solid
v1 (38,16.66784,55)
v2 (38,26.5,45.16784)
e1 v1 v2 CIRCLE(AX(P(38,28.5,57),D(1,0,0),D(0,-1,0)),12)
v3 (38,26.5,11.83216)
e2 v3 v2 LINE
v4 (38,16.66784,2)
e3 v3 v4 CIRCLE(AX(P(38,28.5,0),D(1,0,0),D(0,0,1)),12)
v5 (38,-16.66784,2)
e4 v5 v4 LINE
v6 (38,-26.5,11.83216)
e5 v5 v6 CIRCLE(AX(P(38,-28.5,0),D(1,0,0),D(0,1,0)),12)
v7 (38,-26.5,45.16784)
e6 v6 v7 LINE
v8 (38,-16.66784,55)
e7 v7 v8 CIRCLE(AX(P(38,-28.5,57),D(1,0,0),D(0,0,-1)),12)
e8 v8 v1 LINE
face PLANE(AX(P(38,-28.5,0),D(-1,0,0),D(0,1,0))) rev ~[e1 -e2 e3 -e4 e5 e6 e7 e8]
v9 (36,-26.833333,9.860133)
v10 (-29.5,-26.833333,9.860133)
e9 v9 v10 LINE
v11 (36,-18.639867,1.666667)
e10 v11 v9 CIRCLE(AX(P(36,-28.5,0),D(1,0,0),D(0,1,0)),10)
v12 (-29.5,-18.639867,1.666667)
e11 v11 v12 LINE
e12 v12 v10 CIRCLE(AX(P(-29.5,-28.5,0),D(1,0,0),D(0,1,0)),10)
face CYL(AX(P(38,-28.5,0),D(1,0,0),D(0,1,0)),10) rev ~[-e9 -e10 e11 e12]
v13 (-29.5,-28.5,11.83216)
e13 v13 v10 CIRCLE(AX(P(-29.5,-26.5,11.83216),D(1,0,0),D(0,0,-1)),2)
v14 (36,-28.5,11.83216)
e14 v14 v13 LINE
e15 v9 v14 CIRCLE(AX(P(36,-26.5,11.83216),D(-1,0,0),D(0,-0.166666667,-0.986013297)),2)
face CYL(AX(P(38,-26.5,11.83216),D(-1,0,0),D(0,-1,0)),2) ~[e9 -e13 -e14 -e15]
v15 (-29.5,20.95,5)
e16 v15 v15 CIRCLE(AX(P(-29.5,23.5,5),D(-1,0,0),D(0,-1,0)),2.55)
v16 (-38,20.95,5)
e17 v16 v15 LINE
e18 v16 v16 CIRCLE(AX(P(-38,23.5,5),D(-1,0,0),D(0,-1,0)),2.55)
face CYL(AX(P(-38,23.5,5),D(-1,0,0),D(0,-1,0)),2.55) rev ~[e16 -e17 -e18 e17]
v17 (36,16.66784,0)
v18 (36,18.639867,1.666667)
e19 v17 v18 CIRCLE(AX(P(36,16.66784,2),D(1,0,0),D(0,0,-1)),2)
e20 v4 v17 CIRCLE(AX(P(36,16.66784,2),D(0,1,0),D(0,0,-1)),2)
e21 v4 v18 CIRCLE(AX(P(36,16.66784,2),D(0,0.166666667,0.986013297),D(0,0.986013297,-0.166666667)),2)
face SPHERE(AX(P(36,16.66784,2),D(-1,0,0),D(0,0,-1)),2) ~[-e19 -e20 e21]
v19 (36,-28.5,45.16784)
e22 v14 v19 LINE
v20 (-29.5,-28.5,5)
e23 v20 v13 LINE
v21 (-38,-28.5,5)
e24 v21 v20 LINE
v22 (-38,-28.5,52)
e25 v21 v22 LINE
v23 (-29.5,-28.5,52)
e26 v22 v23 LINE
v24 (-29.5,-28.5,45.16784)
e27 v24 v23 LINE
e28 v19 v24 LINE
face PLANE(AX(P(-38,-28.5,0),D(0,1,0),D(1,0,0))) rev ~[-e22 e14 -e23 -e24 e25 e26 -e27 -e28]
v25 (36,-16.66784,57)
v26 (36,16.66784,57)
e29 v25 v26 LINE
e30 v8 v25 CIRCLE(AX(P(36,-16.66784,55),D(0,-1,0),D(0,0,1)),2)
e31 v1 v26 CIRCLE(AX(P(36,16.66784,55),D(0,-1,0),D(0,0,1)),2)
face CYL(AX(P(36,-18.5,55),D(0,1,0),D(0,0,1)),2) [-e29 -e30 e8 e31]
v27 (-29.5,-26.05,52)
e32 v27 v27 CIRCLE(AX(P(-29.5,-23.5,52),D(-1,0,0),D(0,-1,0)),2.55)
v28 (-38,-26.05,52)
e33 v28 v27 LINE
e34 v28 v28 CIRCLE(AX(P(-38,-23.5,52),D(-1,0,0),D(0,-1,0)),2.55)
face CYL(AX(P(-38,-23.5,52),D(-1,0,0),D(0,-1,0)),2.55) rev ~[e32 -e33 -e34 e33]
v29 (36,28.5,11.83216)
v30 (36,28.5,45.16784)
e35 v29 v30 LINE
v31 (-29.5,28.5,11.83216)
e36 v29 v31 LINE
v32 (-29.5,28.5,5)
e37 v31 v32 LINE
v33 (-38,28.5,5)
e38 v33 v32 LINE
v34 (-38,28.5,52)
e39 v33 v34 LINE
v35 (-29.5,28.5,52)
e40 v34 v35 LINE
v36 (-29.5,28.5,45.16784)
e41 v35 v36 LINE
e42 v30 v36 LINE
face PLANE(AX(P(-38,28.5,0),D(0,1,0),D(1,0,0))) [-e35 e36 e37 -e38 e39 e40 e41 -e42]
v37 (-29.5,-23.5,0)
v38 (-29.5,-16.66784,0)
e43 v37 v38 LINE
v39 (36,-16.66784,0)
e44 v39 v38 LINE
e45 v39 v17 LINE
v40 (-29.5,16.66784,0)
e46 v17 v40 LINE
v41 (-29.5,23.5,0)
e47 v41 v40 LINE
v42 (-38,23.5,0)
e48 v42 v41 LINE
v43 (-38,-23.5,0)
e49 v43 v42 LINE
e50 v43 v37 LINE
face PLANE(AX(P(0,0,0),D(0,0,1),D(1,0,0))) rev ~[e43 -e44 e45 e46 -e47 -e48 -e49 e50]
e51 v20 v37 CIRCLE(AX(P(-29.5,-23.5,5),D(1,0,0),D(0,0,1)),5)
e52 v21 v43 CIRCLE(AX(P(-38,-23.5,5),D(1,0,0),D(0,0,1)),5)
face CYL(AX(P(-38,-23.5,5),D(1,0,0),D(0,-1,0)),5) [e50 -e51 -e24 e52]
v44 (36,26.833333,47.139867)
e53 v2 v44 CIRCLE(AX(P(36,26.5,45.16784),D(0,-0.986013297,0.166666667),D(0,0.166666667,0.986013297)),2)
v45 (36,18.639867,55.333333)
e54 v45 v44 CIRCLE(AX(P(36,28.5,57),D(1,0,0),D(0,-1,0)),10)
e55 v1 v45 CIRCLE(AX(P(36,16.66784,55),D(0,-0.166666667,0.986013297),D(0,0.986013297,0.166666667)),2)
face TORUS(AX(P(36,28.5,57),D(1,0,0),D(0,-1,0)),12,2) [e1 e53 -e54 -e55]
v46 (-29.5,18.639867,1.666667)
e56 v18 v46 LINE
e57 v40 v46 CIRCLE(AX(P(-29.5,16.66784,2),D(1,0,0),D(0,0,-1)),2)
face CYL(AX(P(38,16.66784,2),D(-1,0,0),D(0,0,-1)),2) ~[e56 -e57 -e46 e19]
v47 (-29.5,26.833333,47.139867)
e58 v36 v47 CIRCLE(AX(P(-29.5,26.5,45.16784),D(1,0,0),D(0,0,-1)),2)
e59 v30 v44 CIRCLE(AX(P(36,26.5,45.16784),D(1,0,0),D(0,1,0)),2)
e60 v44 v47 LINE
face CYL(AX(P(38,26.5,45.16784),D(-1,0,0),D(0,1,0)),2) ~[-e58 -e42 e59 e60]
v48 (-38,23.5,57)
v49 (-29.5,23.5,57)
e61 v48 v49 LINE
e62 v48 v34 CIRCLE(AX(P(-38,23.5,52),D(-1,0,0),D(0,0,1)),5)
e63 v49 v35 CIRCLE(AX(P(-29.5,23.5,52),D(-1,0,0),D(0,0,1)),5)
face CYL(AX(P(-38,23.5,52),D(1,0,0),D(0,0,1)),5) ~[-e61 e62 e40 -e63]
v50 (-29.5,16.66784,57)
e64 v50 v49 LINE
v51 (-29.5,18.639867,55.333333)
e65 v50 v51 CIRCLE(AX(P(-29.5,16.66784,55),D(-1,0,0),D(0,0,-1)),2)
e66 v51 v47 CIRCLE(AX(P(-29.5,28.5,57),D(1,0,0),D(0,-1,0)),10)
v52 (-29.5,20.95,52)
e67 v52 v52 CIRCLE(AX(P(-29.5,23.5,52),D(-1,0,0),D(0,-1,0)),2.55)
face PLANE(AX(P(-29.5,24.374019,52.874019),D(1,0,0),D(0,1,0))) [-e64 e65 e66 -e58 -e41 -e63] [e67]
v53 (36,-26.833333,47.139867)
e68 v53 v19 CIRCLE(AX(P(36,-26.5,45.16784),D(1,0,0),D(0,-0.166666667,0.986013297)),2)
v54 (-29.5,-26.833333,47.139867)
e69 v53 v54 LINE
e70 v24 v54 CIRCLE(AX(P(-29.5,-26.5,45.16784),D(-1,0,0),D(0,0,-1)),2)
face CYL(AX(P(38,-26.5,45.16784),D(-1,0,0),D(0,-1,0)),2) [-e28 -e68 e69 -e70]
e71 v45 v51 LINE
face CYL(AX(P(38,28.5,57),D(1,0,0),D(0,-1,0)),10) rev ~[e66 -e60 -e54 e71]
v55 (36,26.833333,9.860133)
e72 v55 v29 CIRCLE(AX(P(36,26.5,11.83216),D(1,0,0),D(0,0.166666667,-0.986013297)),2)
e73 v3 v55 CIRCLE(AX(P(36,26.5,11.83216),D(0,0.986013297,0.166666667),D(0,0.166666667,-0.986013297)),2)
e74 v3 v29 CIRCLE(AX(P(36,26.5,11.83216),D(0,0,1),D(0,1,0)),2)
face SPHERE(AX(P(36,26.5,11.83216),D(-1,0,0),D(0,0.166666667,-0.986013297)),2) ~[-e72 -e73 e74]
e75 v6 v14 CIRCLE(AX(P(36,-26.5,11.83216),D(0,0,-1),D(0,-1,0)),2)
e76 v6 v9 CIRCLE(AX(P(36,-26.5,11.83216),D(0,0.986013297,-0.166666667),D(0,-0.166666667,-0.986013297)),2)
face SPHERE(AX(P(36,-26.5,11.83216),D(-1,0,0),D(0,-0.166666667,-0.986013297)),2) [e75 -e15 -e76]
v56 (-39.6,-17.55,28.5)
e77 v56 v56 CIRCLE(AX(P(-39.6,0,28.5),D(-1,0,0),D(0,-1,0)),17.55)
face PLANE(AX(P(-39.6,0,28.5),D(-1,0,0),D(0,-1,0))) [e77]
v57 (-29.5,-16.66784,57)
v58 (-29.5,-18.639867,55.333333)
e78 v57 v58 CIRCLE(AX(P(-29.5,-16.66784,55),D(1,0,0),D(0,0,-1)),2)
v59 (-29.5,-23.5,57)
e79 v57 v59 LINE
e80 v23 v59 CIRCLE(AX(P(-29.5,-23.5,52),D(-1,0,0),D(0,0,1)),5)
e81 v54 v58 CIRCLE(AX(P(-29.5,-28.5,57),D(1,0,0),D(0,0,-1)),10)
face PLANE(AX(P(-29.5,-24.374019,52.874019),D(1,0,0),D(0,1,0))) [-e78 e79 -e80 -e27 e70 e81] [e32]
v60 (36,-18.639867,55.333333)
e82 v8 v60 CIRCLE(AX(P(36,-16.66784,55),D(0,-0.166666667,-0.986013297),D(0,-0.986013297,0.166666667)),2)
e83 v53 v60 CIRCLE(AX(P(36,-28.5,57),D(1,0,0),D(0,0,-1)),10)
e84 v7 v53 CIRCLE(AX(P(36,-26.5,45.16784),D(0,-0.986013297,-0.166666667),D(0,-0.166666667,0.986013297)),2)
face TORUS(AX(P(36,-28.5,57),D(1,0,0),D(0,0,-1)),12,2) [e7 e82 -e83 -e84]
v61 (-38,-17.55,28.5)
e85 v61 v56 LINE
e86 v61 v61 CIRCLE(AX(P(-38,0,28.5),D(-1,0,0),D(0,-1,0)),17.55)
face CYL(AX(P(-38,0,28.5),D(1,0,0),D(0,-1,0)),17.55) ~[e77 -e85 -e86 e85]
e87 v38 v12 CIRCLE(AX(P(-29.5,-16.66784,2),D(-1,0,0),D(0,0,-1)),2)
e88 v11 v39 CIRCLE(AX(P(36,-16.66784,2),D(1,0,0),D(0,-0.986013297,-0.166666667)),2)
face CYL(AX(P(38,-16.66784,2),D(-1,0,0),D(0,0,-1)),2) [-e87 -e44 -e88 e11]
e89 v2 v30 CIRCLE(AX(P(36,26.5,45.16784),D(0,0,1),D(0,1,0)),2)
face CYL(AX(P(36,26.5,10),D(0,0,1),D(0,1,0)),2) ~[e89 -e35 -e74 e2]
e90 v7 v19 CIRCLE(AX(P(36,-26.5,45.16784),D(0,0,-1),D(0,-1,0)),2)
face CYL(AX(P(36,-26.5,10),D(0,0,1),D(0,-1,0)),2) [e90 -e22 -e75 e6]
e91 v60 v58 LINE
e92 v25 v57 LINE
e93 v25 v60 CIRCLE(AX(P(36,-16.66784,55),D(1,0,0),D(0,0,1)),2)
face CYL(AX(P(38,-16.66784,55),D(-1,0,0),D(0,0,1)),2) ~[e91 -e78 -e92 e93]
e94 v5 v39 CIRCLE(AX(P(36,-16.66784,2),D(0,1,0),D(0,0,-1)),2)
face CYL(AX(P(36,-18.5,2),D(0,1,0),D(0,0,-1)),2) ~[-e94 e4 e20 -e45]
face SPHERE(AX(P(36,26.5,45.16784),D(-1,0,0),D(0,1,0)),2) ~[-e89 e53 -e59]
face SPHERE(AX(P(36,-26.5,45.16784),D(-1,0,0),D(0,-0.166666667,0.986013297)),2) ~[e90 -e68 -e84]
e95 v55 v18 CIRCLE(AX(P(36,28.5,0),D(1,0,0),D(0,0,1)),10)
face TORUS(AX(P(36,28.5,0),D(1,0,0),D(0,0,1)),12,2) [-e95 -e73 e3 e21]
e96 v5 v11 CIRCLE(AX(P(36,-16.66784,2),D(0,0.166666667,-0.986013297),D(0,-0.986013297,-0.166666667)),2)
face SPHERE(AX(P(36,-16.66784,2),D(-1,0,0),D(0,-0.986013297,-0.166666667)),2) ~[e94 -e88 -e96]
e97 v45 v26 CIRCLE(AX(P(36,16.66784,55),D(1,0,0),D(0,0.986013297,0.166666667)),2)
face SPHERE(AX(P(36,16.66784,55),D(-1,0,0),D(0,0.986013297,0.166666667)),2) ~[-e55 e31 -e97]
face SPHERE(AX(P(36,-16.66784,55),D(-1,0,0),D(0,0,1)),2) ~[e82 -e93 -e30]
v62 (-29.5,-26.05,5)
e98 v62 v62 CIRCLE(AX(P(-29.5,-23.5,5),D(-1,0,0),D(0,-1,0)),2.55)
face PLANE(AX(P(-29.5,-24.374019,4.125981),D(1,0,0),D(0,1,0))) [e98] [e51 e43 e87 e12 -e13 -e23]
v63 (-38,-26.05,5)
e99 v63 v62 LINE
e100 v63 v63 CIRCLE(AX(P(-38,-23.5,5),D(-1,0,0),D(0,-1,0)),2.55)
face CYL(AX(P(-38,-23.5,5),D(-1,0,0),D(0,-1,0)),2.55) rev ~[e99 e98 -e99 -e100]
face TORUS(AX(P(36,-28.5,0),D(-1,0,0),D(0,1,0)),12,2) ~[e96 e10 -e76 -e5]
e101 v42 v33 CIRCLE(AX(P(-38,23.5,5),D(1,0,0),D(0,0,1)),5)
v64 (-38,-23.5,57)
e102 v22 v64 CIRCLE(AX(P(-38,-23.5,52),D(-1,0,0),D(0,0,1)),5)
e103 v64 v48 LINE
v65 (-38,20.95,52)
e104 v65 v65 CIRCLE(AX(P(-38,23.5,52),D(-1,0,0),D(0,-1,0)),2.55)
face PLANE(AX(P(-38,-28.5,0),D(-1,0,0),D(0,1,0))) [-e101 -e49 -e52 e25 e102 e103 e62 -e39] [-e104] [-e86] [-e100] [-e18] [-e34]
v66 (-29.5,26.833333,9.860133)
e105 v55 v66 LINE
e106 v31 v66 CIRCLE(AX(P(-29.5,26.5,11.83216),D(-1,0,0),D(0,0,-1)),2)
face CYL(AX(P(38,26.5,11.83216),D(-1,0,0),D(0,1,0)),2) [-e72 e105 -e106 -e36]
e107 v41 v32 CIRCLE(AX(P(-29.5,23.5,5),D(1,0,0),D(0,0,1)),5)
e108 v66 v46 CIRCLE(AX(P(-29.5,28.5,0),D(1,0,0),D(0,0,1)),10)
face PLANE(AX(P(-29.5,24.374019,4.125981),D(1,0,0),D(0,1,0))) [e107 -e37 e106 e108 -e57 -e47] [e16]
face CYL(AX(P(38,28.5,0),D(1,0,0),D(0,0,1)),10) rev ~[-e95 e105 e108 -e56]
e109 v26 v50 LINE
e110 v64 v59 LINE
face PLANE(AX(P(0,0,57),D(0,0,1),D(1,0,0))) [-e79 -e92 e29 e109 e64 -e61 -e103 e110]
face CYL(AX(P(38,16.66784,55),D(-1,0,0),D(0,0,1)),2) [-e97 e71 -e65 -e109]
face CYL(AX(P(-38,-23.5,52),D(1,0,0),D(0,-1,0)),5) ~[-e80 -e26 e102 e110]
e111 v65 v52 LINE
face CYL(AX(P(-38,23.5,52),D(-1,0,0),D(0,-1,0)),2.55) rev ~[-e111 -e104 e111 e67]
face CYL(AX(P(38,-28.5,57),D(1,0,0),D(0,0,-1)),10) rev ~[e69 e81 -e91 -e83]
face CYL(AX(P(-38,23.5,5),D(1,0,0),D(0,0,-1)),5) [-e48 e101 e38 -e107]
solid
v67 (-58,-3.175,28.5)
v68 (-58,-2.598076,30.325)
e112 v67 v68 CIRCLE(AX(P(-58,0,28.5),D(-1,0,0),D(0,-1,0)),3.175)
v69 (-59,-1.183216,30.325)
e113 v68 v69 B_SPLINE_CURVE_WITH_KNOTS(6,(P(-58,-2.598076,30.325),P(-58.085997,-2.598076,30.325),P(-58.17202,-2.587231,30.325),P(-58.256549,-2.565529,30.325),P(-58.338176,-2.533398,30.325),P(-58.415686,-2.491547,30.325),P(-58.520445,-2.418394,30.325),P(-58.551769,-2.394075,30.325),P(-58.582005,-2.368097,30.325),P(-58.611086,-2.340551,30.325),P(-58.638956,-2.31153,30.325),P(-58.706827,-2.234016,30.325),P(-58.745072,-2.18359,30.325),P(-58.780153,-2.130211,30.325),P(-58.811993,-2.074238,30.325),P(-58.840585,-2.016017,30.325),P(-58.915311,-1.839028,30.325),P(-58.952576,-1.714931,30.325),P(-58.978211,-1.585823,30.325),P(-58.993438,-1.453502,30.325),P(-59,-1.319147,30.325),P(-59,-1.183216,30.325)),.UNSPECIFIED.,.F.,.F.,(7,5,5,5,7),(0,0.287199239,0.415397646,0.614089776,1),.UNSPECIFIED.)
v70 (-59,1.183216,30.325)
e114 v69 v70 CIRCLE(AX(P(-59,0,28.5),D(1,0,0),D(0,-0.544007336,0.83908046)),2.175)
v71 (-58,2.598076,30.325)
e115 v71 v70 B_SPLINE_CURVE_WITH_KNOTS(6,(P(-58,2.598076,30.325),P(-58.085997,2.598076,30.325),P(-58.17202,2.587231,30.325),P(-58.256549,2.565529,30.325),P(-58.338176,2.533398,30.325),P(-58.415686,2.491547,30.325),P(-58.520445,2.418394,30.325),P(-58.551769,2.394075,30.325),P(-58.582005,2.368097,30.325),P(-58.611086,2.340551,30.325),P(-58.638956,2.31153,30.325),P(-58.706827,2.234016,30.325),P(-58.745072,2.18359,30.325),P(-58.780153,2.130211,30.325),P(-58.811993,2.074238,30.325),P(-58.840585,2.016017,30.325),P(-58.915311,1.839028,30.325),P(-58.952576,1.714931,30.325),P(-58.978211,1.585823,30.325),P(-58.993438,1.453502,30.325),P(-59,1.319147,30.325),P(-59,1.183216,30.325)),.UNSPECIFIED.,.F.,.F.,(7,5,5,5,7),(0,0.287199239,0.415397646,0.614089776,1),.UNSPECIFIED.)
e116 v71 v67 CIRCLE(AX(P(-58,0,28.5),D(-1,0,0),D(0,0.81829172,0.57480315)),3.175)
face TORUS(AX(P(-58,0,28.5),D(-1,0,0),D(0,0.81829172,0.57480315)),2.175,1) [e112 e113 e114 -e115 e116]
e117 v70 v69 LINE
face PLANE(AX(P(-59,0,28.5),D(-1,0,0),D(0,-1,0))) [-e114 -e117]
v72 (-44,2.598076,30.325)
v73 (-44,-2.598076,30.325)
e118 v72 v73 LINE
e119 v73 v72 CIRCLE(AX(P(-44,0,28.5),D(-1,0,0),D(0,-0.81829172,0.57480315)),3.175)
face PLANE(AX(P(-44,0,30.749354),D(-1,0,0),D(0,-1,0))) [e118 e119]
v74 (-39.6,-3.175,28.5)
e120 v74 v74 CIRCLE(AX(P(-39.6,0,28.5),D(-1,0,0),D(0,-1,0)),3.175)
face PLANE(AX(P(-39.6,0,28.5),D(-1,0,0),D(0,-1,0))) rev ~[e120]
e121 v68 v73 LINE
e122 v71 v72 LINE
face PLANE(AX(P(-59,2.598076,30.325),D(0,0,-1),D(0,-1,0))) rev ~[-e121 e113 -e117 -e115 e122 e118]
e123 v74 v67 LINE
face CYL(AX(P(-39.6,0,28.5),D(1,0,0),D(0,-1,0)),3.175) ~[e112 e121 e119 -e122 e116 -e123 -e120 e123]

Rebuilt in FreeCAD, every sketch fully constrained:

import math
import FreeCAD as App
import Part
import Sketcher

V = App.Vector
Q = App.Units.Quantity


def edges_at(feature, points):
    """Names of the edges that pass closest to the given points."""
    edges = feature.Shape.Edges
    near = lambda p: min(range(len(edges)), key=lambda i: edges[i].distToShape(Part.Vertex(*p))[0])
    return sorted({f"Edge{near(p) + 1}" for p in points})

doc = App.newDocument("Part")
body = doc.addObject("PartDesign::Body", "Body")

sketch1 = body.newObject("Sketcher::SketchObject", "Sketch")
sketch1.AttachmentSupport = (doc.getObject("XY_Plane"), [""])
sketch1.MapMode = "FlatFace"
sketch1.addGeometry([
    Part.LineSegment(V(-38, 28.5, 0), V(-38, -28.5, 0)),
    Part.LineSegment(V(-38, -28.5, 0), V(38, -28.5, 0)),
    Part.LineSegment(V(38, -28.5, 0), V(38, 28.5, 0)),
    Part.LineSegment(V(38, 28.5, 0), V(-38, 28.5, 0)),
], False)
sketch1.addConstraint([
    Sketcher.Constraint("Coincident", 0, 2, 1, 1),
    Sketcher.Constraint("Coincident", 1, 2, 2, 1),
    Sketcher.Constraint("Coincident", 2, 2, 3, 1),
    Sketcher.Constraint("Coincident", 3, 2, 0, 1),
    Sketcher.Constraint("Vertical", 0),
    Sketcher.Constraint("Horizontal", 1),
    Sketcher.Constraint("Vertical", 2),
    Sketcher.Constraint("Horizontal", 3),
    Sketcher.Constraint("Symmetric", 0, 2, 2, 2, -1, 1),
    Sketcher.Constraint("DistanceX", 1, 1, 1, 2, Q("76 mm")),
    Sketcher.Constraint("DistanceY", 0, 2, 0, 1, Q("57 mm")),
])
pad1 = body.newObject("PartDesign::Pad", "Pad")
pad1.Profile = sketch1
pad1.Length = 57

sketch2 = body.newObject("Sketcher::SketchObject", "Sketch001")
sketch2.AttachmentSupport = (doc.getObject("YZ_Plane"), [""])
sketch2.MapMode = "FlatFace"
sketch2.AttachmentOffset = App.Placement(V(0, 0, -38), App.Rotation())
sketch2.addGeometry(Part.Circle(V(0, 28.5, 0), V(0, 0, 1), 17.55), False)
sketch2.addConstraint([
    Sketcher.Constraint("PointOnObject", 0, 3, -2),
    Sketcher.Constraint("Diameter", 0, Q("35.1 mm")),
    Sketcher.Constraint("DistanceY", -1, 1, 0, 3, Q("28.5 mm")),
])
pad2 = body.newObject("PartDesign::Pad", "Pad001")
pad2.Profile = sketch2
pad2.Length = 1.6
pad2.Reversed = True

sketch3 = body.newObject("Sketcher::SketchObject", "Sketch002")
sketch3.AttachmentSupport = (doc.getObject("YZ_Plane"), [""])
sketch3.MapMode = "FlatFace"
sketch3.AttachmentOffset = App.Placement(V(0, 0, -38), App.Rotation())
sketch3.addGeometry([
    Part.Circle(V(23.5, 52, 0), V(0, 0, 1), 2.55),
    Part.Circle(V(-23.5, 52, 0), V(0, 0, 1), 2.55),
    Part.Circle(V(-23.5, 5, 0), V(0, 0, 1), 2.55),
    Part.Circle(V(23.5, 5, 0), V(0, 0, 1), 2.55),
], False)
sketch3.addConstraint([
    Sketcher.Constraint("Equal", 0, 1),
    Sketcher.Constraint("Equal", 1, 2),
    Sketcher.Constraint("Equal", 2, 3),
    Sketcher.Constraint("Symmetric", 0, 3, 1, 3, -2),
    Sketcher.Constraint("Symmetric", 2, 3, 3, 3, -2),
    Sketcher.Constraint("Vertical", 1, 3, 2, 3),
    Sketcher.Constraint("Diameter", 0, Q("5.1 mm")),
    Sketcher.Constraint("DistanceY", -1, 1, 0, 3, Q("52 mm")),
    Sketcher.Constraint("DistanceY", -1, 1, 2, 3, Q("5 mm")),
    Sketcher.Constraint("DistanceX", 1, 3, 0, 3, Q("47 mm")),
])
pocket1 = body.newObject("PartDesign::Pocket", "Pocket")
pocket1.Profile = sketch3
pocket1.Length = 25
pocket1.Reversed = True

sketch4 = body.newObject("Sketcher::SketchObject", "Sketch003")
sketch4.AttachmentSupport = (doc.getObject("YZ_Plane"), [""])
sketch4.MapMode = "FlatFace"
sketch4.AttachmentOffset = App.Placement(V(0, 0, 38), App.Rotation())
sketch4.addGeometry([
    Part.LineSegment(V(-28.5, 57, 0), V(-28.5, 47, 0)),
    Part.ArcOfCircle(Part.Circle(V(-28.5, 57, 0), V(0, 0, 1), 10), math.radians(-90), math.radians(0)),
    Part.LineSegment(V(-18.5, 57, 0), V(-28.5, 57, 0)),
    Part.LineSegment(V(-28.5, 0, 0), V(-18.5, 0, 0)),
    Part.ArcOfCircle(Part.Circle(V(-28.5, 0, 0), V(0, 0, 1), 10), math.radians(0), math.radians(90)),
    Part.LineSegment(V(-28.5, 10, 0), V(-28.5, 0, 0)),
    Part.LineSegment(V(28.5, 0, 0), V(28.5, 10, 0)),
    Part.ArcOfCircle(Part.Circle(V(28.5, 0, 0), V(0, 0, 1), 10), math.radians(90), math.radians(180)),
    Part.LineSegment(V(18.5, 0, 0), V(28.5, 0, 0)),
    Part.LineSegment(V(28.5, 57, 0), V(18.5, 57, 0)),
    Part.ArcOfCircle(Part.Circle(V(28.5, 57, 0), V(0, 0, 1), 10), math.radians(180), math.radians(270)),
    Part.LineSegment(V(28.5, 47, 0), V(28.5, 57, 0)),
], False)
sketch4.addConstraint([
    Sketcher.Constraint("Coincident", 0, 2, 1, 1),
    Sketcher.Constraint("Coincident", 1, 2, 2, 1),
    Sketcher.Constraint("Coincident", 2, 2, 0, 1),
    Sketcher.Constraint("Coincident", 3, 2, 4, 1),
    Sketcher.Constraint("Coincident", 4, 2, 5, 1),
    Sketcher.Constraint("Coincident", 5, 2, 3, 1),
    Sketcher.Constraint("Coincident", 6, 2, 7, 1),
    Sketcher.Constraint("Coincident", 7, 2, 8, 1),
    Sketcher.Constraint("Coincident", 8, 2, 6, 1),
    Sketcher.Constraint("Coincident", 9, 2, 10, 1),
    Sketcher.Constraint("Coincident", 10, 2, 11, 1),
    Sketcher.Constraint("Coincident", 11, 2, 9, 1),
    Sketcher.Constraint("Vertical", 0),
    Sketcher.Constraint("Horizontal", 2),
    Sketcher.Constraint("Horizontal", 3),
    Sketcher.Constraint("Vertical", 5),
    Sketcher.Constraint("Vertical", 6),
    Sketcher.Constraint("Horizontal", 8),
    Sketcher.Constraint("Horizontal", 9),
    Sketcher.Constraint("Vertical", 11),
    Sketcher.Constraint("Coincident", 2, 2, 1, 3),
    Sketcher.Constraint("Coincident", 5, 2, 4, 3),
    Sketcher.Constraint("Coincident", 8, 2, 7, 3),
    Sketcher.Constraint("Coincident", 11, 2, 10, 3),
    Sketcher.Constraint("Equal", 1, 4),
    Sketcher.Constraint("Equal", 4, 7),
    Sketcher.Constraint("Equal", 7, 10),
    Sketcher.Constraint("Symmetric", 4, 3, 7, 3, -1, 1),
    Sketcher.Constraint("Symmetric", 1, 3, 10, 3, -2),
    Sketcher.Constraint("PointOnObject", 4, 3, -1),
    Sketcher.Constraint("Vertical", 1, 3, 4, 3),
    Sketcher.Constraint("Radius", 1, Q("10 mm")),
    Sketcher.Constraint("DistanceY", -1, 1, 1, 3, Q("57 mm")),
    Sketcher.Constraint("DistanceX", 4, 3, 7, 3, Q("57 mm")),
])
pocket2 = body.newObject("PartDesign::Pocket", "Pocket001")
pocket2.Profile = sketch4
pocket2.Length = 67.5
doc.recompute()

fillet = body.newObject("PartDesign::Fillet", "Fillet")
fillet.Base = (pocket2, edges_at(pocket2, [
    (-33.75, -28.5, 57),
    (-33.75, 28.5, 57),
    (-33.75, 28.5, 0),
    (-33.75, -28.5, 0),
]))
fillet.Radius = 5
doc.recompute()

fillet2 = body.newObject("PartDesign::Fillet", "Fillet001")
fillet2.Base = (fillet, edges_at(fillet, [
    (4.25, -18.5, 57),
    (4.25, -28.5, 47),
    (4.25, -28.5, 10),
    (4.25, -18.5, 0),
    (4.25, 18.5, 57),
    (4.25, 28.5, 47),
    (4.25, 28.5, 10),
    (4.25, 18.5, 0),
    (38, -21.429, 7.071),
    (38, 0, 0),
    (38, 21.429, 7.071),
    (38, 28.5, 28.5),
    (38, 21.429, 49.929),
    (38, 0, 57),
    (38, -21.429, 49.929),
    (38, -28.5, 28.5),
]))
fillet2.Radius = 2
body2 = doc.addObject("PartDesign::Body", "Body001")

sketch5 = body2.newObject("Sketcher::SketchObject", "Sketch004")
sketch5.AttachmentSupport = (doc.getObject("YZ_Plane001"), [""])
sketch5.MapMode = "FlatFace"
sketch5.AttachmentOffset = App.Placement(V(0, 0, -39.6), App.Rotation())
sketch5.addGeometry(Part.Circle(V(0, 28.5, 0), V(0, 0, 1), 3.175), False)
sketch5.addConstraint([
    Sketcher.Constraint("PointOnObject", 0, 3, -2),
    Sketcher.Constraint("Diameter", 0, Q("6.35 mm")),
    Sketcher.Constraint("DistanceY", -1, 1, 0, 3, Q("28.5 mm")),
])
pad3 = body2.newObject("PartDesign::Pad", "Pad002")
pad3.Profile = sketch5
pad3.Length = 19.4
pad3.Reversed = True

sketch6 = body2.newObject("Sketcher::SketchObject", "Sketch005")
sketch6.AttachmentSupport = (doc.getObject("YZ_Plane001"), [""])
sketch6.MapMode = "FlatFace"
sketch6.AttachmentOffset = App.Placement(V(0, 0, -59), App.Rotation())
sketch6.addGeometry([
    Part.ArcOfCircle(Part.Circle(V(0, 28.5, 0), V(0, 0, 1), 3.175), math.radians(35.085848), math.radians(144.914152)),
    Part.LineSegment(V(2.598076, 30.325, 0), V(-2.598076, 30.325, 0)),
], False)
sketch6.addConstraint([
    Sketcher.Constraint("Coincident", 0, 1, 1, 1),
    Sketcher.Constraint("Coincident", 1, 2, 0, 2),
    Sketcher.Constraint("Horizontal", 1),
    Sketcher.Constraint("PointOnObject", 0, 3, -2),
    Sketcher.Constraint("Radius", 0, Q("3.175 mm")),
    Sketcher.Constraint("DistanceY", -1, 1, 0, 3, Q("28.5 mm")),
    Sketcher.Constraint("DistanceY", -1, 1, 0, 1, Q("30.325 mm")),
])
pocket3 = body2.newObject("PartDesign::Pocket", "Pocket002")
pocket3.Profile = sketch6
pocket3.Length = 15
pocket3.Reversed = True
doc.recompute()

fillet3 = body2.newObject("PartDesign::Fillet", "Fillet002")
fillet3.Base = (pocket3, edges_at(pocket3, [(-59, 0.957, 25.473)]))
fillet3.Radius = 1

doc.recompute()
